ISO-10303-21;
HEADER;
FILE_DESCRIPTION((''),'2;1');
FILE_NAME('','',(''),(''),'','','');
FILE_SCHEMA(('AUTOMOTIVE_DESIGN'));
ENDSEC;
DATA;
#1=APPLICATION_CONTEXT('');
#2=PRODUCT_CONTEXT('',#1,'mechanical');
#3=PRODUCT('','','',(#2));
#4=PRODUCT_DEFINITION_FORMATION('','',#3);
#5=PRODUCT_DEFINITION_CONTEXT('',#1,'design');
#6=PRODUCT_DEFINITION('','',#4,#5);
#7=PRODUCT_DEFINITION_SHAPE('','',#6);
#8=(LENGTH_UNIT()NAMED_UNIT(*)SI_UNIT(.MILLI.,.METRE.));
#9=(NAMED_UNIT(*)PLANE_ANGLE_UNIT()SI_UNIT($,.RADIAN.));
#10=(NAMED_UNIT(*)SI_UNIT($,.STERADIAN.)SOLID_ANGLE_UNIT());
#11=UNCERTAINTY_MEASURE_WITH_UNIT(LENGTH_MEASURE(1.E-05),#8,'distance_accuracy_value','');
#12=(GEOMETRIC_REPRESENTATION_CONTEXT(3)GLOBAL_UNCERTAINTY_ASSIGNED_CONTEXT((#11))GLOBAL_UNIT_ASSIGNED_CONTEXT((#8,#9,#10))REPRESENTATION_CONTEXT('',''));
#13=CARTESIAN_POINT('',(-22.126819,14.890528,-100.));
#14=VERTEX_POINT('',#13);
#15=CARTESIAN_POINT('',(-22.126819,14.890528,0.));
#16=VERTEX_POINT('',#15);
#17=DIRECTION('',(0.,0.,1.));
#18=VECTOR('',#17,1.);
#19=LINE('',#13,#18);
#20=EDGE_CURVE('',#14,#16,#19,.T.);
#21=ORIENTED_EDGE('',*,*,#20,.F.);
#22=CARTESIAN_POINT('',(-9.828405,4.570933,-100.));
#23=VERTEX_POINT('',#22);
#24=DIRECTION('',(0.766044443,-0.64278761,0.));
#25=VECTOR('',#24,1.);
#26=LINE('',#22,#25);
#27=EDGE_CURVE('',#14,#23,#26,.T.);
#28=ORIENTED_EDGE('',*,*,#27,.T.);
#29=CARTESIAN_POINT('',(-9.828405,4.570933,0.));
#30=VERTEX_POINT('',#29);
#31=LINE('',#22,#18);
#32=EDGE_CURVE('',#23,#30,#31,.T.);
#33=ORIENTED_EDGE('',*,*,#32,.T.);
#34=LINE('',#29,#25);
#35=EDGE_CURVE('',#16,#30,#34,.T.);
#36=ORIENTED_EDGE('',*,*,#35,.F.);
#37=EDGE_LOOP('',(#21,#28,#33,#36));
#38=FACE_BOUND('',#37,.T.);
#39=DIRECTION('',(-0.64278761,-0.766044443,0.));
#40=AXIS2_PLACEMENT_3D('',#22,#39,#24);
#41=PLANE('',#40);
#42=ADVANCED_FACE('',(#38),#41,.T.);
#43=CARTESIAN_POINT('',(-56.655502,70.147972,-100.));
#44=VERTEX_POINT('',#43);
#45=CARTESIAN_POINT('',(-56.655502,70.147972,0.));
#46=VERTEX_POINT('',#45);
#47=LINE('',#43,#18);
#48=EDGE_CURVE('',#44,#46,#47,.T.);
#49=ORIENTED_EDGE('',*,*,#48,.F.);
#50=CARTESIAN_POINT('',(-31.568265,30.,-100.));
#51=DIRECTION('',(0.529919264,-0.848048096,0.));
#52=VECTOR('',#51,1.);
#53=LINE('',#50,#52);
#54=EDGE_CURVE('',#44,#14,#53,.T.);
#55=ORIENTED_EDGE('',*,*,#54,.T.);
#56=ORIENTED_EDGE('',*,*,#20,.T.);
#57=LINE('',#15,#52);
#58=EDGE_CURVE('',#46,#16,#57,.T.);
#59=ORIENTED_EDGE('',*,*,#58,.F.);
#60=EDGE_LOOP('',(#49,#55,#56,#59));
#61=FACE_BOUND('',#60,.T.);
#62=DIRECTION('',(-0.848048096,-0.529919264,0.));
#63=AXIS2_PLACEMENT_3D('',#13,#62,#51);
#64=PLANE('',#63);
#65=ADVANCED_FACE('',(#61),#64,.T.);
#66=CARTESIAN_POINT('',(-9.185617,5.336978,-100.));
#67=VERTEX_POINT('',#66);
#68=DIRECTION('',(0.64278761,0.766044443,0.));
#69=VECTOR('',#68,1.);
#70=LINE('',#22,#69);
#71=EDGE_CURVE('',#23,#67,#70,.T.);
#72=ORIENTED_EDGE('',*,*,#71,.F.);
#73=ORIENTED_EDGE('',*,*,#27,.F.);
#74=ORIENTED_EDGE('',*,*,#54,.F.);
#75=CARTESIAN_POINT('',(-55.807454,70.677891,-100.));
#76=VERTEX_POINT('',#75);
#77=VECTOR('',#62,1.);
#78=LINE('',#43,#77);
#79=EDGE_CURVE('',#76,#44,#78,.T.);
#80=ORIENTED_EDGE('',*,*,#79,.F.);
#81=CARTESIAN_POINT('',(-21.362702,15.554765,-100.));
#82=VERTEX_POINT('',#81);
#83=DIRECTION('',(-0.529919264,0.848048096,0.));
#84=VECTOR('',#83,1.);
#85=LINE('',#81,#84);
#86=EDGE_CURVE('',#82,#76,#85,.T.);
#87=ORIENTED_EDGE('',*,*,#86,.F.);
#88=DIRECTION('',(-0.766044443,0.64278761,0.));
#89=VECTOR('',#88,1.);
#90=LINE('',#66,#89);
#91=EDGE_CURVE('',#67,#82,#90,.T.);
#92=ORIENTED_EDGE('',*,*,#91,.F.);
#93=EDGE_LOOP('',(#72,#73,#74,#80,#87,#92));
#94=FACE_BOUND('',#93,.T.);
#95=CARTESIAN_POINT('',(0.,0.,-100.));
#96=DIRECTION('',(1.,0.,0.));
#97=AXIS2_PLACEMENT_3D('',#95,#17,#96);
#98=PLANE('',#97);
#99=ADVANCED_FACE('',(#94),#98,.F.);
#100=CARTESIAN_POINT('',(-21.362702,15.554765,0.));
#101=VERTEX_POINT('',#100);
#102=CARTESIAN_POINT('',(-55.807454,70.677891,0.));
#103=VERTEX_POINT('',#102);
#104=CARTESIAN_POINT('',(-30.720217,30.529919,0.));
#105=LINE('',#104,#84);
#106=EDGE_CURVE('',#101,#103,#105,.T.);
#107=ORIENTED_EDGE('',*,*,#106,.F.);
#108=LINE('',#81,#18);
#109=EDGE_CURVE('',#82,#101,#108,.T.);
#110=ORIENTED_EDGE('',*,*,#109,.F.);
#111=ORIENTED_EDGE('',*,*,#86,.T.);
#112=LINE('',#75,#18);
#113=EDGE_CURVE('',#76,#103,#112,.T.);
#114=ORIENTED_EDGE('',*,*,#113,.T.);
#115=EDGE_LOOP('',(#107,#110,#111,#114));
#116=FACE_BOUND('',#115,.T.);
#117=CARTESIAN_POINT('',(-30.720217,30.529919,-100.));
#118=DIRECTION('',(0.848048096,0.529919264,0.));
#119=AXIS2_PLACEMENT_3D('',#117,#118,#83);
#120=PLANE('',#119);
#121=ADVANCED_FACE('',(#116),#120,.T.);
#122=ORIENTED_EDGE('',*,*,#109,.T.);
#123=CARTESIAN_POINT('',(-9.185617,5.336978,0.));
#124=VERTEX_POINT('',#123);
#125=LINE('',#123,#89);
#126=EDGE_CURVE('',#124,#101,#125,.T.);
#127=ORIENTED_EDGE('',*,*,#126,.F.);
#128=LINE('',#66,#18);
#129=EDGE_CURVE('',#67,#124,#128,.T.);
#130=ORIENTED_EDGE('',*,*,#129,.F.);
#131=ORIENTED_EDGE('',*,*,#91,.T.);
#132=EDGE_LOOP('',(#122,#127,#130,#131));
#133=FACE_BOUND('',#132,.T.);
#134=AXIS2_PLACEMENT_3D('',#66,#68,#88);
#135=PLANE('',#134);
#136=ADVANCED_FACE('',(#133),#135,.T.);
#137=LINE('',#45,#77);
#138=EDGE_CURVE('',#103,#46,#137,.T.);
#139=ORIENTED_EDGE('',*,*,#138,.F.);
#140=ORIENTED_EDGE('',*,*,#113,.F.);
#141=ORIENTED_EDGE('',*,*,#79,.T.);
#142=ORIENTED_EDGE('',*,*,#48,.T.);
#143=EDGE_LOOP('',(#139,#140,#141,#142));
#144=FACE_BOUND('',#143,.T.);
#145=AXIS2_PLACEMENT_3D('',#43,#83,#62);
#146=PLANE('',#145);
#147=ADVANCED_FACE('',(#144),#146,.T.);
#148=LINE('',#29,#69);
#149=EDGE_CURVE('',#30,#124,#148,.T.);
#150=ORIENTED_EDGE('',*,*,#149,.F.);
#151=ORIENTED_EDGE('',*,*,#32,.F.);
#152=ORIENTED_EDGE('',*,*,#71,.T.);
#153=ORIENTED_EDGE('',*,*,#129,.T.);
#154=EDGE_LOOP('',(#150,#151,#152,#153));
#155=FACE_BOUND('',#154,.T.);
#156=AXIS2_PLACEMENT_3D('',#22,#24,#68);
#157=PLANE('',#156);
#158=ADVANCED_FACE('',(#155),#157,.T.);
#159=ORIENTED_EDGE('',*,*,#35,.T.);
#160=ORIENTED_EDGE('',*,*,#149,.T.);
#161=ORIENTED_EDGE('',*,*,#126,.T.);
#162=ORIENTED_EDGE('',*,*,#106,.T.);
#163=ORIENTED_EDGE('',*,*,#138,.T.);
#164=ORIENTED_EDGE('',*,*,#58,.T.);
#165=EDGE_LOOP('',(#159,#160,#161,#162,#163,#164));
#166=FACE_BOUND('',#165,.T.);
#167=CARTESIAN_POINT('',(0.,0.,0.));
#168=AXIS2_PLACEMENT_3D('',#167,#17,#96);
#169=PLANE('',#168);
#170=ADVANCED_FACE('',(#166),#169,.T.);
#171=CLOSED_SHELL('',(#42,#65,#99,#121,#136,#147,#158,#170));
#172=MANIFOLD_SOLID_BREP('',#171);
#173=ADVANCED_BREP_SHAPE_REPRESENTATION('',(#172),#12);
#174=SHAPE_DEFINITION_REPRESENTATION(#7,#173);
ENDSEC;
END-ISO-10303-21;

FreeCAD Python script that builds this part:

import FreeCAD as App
import Part
import Sketcher
from FreeCAD import Vector
Q = App.Units.Quantity

doc = App.newDocument("Part")
params = doc.addObject("Spreadsheet::Sheet", "Params")
for row, (alias, value) in enumerate([
    ("sketch1_length", "1 mm"),
    ("pad1_length", "100 mm"),
], start=1):
    params.set(f"A{row}", alias)
    params.set(f"B{row}", "=" + value)
    params.setAlias(f"B{row}", alias)

body = doc.addObject("PartDesign::Body", "Body")

# Sketch on XY plane
sketch1 = doc.addObject("Sketcher::SketchObject", "Sketch")
body.addObject(sketch1)
sketch1.AttachmentSupport = (doc.XY_Plane, [""])
sketch1.MapMode = "FlatFace"
sketch1.addGeometry([
    Part.LineSegment(Vector(-22.1, 14.9, 0), Vector(-9.8, 4.6, 0)),  # 0
    Part.LineSegment(Vector(-9.8, 4.6, 0), Vector(-9.2, 5.3, 0)),  # 1
    Part.LineSegment(Vector(-9.2, 5.3, 0), Vector(-21.4, 15.6, 0)),  # 2
    Part.LineSegment(Vector(-21.4, 15.6, 0), Vector(-30.7, 30.5, 0)),  # 3
    Part.LineSegment(Vector(-30.7, 30.5, 0), Vector(-55.8, 70.7, 0)),  # 4
    Part.LineSegment(Vector(-55.8, 70.7, 0), Vector(-56.7, 70.1, 0)),  # 5
    Part.LineSegment(Vector(-56.7, 70.1, 0), Vector(-31.6, 30, 0)),  # 6
    Part.LineSegment(Vector(-31.6, 30, 0), Vector(-22.1, 14.9, 0)),  # 7
], False)
sketch1.addConstraint([
    Sketcher.Constraint("Coincident", 0, 2, 1, 1),
    Sketcher.Constraint("Coincident", 1, 2, 2, 1),
    Sketcher.Constraint("Coincident", 2, 2, 3, 1),
    Sketcher.Constraint("Coincident", 3, 2, 4, 1),
    Sketcher.Constraint("Coincident", 4, 2, 5, 1),
    Sketcher.Constraint("Coincident", 5, 2, 6, 1),
    Sketcher.Constraint("Coincident", 6, 2, 7, 1),
    Sketcher.Constraint("Coincident", 7, 2, 0, 1),
    Sketcher.Constraint("Perpendicular", 0, 1),
    Sketcher.Constraint("Perpendicular", 1, 2),
    Sketcher.Constraint("Parallel", 3, 4),
    Sketcher.Constraint("Perpendicular", 4, 5),
    Sketcher.Constraint("Perpendicular", 5, 6),
    Sketcher.Constraint("Parallel", 6, 7),
    Sketcher.Constraint("Equal", 1, 5),
    Sketcher.Constraint("Equal", 4, 6),
    Sketcher.Constraint("Angle", 0, Q("-40 deg")),
    Sketcher.Constraint("Angle", 3, Q("122 deg")),
    Sketcher.Constraint("Distance", 1, Q("1 mm")),
    Sketcher.Constraint("DistanceY", -1, 1, 6, 2, Q("30 mm")),
    Sketcher.Constraint("DistanceX", 2, 2, -1, 1, Q("21.362702 mm")),
    Sketcher.Constraint("DistanceX", 3, 2, 1, 2, Q("21.534599 mm")),
    Sketcher.Constraint("DistanceX", 5, 2, 2, 2, Q("35.2928 mm")),
    Sketcher.Constraint("DistanceX", 7, 2, 1, 2, Q("12.941201 mm")),
])
sketch1.setExpression("Constraints[18]", "Params.sketch1_length")
pad1 = doc.addObject("PartDesign::Pad", "Pad")
body.addObject(pad1)
pad1.Profile = sketch1
pad1.setExpression("Length", "Params.pad1_length")
pad1.Reversed = True

doc.recompute()
